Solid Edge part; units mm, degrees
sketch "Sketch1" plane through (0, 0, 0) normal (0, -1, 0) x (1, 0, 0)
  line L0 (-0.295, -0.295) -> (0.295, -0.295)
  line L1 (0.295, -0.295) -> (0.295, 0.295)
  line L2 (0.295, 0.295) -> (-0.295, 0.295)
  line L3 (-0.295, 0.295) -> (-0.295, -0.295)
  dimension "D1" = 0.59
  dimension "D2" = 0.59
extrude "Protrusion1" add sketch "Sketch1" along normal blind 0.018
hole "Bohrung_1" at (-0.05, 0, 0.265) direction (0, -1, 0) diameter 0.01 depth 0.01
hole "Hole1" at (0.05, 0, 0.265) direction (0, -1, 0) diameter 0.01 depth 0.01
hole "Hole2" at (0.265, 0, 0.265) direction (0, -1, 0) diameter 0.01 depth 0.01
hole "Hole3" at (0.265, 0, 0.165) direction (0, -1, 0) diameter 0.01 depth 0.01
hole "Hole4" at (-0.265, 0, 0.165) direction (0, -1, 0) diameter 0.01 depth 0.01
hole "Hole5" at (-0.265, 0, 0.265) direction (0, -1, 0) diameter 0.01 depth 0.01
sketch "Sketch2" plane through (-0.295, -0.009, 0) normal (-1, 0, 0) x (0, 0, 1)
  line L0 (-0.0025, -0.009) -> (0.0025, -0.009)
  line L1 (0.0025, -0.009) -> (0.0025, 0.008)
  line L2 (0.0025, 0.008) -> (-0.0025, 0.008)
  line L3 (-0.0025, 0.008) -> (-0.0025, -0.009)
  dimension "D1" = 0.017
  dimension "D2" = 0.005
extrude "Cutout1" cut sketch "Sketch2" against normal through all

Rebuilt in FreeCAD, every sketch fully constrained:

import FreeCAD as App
import Part
import Sketcher
from FreeCAD import Vector


def add_polygon(sketch, points):
    """Adds a closed chain of lines whose ends are joined by coincident constraints."""
    first, n = sketch.GeometryCount, len(points)
    for a, b in zip(points, points[1:] + points[:1]):
        sketch.addGeometry(Part.LineSegment(App.Vector(*a, 0), App.Vector(*b, 0)), False)
    for i in range(n):
        sketch.addConstraint(Sketcher.Constraint("Coincident", first + i, 2, first + (i + 1) % n, 1))

doc = App.newDocument("Part")
body = doc.addObject("PartDesign::Body", "Body")

# Sketch on XZ plane
sketch1 = body.newObject("Sketcher::SketchObject", "Sketch")
sketch1.AttachmentSupport = (doc.getObject("XZ_Plane"), [""])
sketch1.MapMode = "FlatFace"
add_polygon(sketch1, [(-0.295, 0.295), (-0.295, -0.295), (0.295, -0.295), (0.295, 0.295)])  # lines 0-3
sketch1.addConstraint([
    Sketcher.Constraint("Vertical", 0),
    Sketcher.Constraint("Horizontal", 1),
    Sketcher.Constraint("Vertical", 2),
    Sketcher.Constraint("Horizontal", 3),
    Sketcher.Constraint("Symmetric", 0, 2, 2, 2, -1, 1),
    Sketcher.Constraint("Equal", 3, 0),
    Sketcher.Constraint("DistanceX", 0, 2, -1, 1, 0.295),
])
pad1 = body.newObject("PartDesign::Pad", "Pad")
pad1.Profile = sketch1
pad1.Length = 0.018

# Sketch on XZ plane
sketch2 = body.newObject("Sketcher::SketchObject", "Sketch001")
sketch2.AttachmentSupport = (doc.getObject("XZ_Plane"), [""])
sketch2.MapMode = "FlatFace"
sketch2.addGeometry(Part.Circle(Vector(-0.05, 0.265, 0), Vector(0, 0, 1), 0.005), False)
sketch2.addConstraint([
    Sketcher.Constraint("Diameter", 0, 0.01),
    Sketcher.Constraint("DistanceX", 0, 3, -1, 1, 0.05),
    Sketcher.Constraint("DistanceY", -1, 1, 0, 3, 0.265),
])
doc.recompute()
hole = body.newObject("PartDesign::Hole", "Hole")
hole.Profile = sketch2
hole.ThreadType = "None"
hole.Diameter = 0.01
hole.DepthType = "Dimension"
hole.Depth = 0.01
hole.DrillPoint = "Flat"
hole.Reversed = True

# Sketch on XZ plane
sketch3 = body.newObject("Sketcher::SketchObject", "Sketch002")
sketch3.AttachmentSupport = (doc.getObject("XZ_Plane"), [""])
sketch3.MapMode = "FlatFace"
sketch3.addGeometry(Part.Circle(Vector(0.05, 0.265, 0), Vector(0, 0, 1), 0.005), False)
sketch3.addConstraint([
    Sketcher.Constraint("Diameter", 0, 0.01),
    Sketcher.Constraint("DistanceX", -1, 1, 0, 3, 0.05),
    Sketcher.Constraint("DistanceY", -1, 1, 0, 3, 0.265),
])
doc.recompute()
hole2 = body.newObject("PartDesign::Hole", "Hole001")
hole2.Profile = sketch3
hole2.ThreadType = "None"
hole2.Diameter = 0.01
hole2.DepthType = "Dimension"
hole2.Depth = 0.01
hole2.DrillPoint = "Flat"
hole2.Reversed = True

# Sketch on XZ plane
sketch4 = body.newObject("Sketcher::SketchObject", "Sketch003")
sketch4.AttachmentSupport = (doc.getObject("XZ_Plane"), [""])
sketch4.MapMode = "FlatFace"
sketch4.addGeometry(Part.Circle(Vector(0.265, 0.265, 0), Vector(0, 0, 1), 0.005), False)
sketch4.addConstraint([
    Sketcher.Constraint("Diameter", 0, 0.01),
    Sketcher.Constraint("DistanceX", -1, 1, 0, 3, 0.265),
    Sketcher.Constraint("DistanceY", -1, 1, 0, 3, 0.265),
])
doc.recompute()
hole3 = body.newObject("PartDesign::Hole", "Hole002")
hole3.Profile = sketch4
hole3.ThreadType = "None"
hole3.Diameter = 0.01
hole3.DepthType = "Dimension"
hole3.Depth = 0.01
hole3.DrillPoint = "Flat"
hole3.Reversed = True

# Sketch on XZ plane
sketch5 = body.newObject("Sketcher::SketchObject", "Sketch004")
sketch5.AttachmentSupport = (doc.getObject("XZ_Plane"), [""])
sketch5.MapMode = "FlatFace"
sketch5.addGeometry(Part.Circle(Vector(0.265, 0.165, 0), Vector(0, 0, 1), 0.005), False)
sketch5.addConstraint([
    Sketcher.Constraint("Diameter", 0, 0.01),
    Sketcher.Constraint("DistanceX", -1, 1, 0, 3, 0.265),
    Sketcher.Constraint("DistanceY", -1, 1, 0, 3, 0.165),
])
doc.recompute()
hole4 = body.newObject("PartDesign::Hole", "Hole003")
hole4.Profile = sketch5
hole4.ThreadType = "None"
hole4.Diameter = 0.01
hole4.DepthType = "Dimension"
hole4.Depth = 0.01
hole4.DrillPoint = "Flat"
hole4.Reversed = True

# Sketch on XZ plane
sketch6 = body.newObject("Sketcher::SketchObject", "Sketch005")
sketch6.AttachmentSupport = (doc.getObject("XZ_Plane"), [""])
sketch6.MapMode = "FlatFace"
sketch6.addGeometry(Part.Circle(Vector(-0.265, 0.165, 0), Vector(0, 0, 1), 0.005), False)
sketch6.addConstraint([
    Sketcher.Constraint("Diameter", 0, 0.01),
    Sketcher.Constraint("DistanceX", 0, 3, -1, 1, 0.265),
    Sketcher.Constraint("DistanceY", -1, 1, 0, 3, 0.165),
])
doc.recompute()
hole5 = body.newObject("PartDesign::Hole", "Hole004")
hole5.Profile = sketch6
hole5.ThreadType = "None"
hole5.Diameter = 0.01
hole5.DepthType = "Dimension"
hole5.Depth = 0.01
hole5.DrillPoint = "Flat"
hole5.Reversed = True

# Sketch on XZ plane
sketch7 = body.newObject("Sketcher::SketchObject", "Sketch006")
sketch7.AttachmentSupport = (doc.getObject("XZ_Plane"), [""])
sketch7.MapMode = "FlatFace"
sketch7.addGeometry(Part.Circle(Vector(-0.265, 0.265, 0), Vector(0, 0, 1), 0.005), False)
sketch7.addConstraint([
    Sketcher.Constraint("Diameter", 0, 0.01),
    Sketcher.Constraint("DistanceX", 0, 3, -1, 1, 0.265),
    Sketcher.Constraint("DistanceY", -1, 1, 0, 3, 0.265),
])
doc.recompute()
hole6 = body.newObject("PartDesign::Hole", "Hole005")
hole6.Profile = sketch7
hole6.ThreadType = "None"
hole6.Diameter = 0.01
hole6.DepthType = "Dimension"
hole6.Depth = 0.01
hole6.DrillPoint = "Flat"
hole6.Reversed = True

# Sketch on YZ plane
sketch8 = body.newObject("Sketcher::SketchObject", "Sketch007")
sketch8.AttachmentSupport = (doc.getObject("YZ_Plane"), [""])
sketch8.MapMode = "FlatFace"
sketch8.AttachmentOffset = App.Placement(Vector(0, 0, -0.295), App.Rotation())
add_polygon(sketch8, [(-0.001, -0.0025), (-0.018, -0.0025), (-0.018, 0.0025), (-0.001, 0.0025)])  # lines 0-3
sketch8.addConstraint([
    Sketcher.Constraint("Horizontal", 0),
    Sketcher.Constraint("Vertical", 1),
    Sketcher.Constraint("Horizontal", 2),
    Sketcher.Constraint("Vertical", 3),
    Sketcher.Constraint("DistanceY", 0, 2, -1, 1, 0.0025),
    Sketcher.Constraint("DistanceY", -1, 1, 1, 2, 0.0025),
    Sketcher.Constraint("DistanceX", 0, 2, 0, 1, 0.017),
    Sketcher.Constraint("DistanceX", 0, 2, -1, 1, 0.018),
])
pocket1 = body.newObject("PartDesign::Pocket", "Pocket")
pocket1.Profile = sketch8
pocket1.Type = "ThroughAll"
pocket1.Reversed = True

doc.recompute()
